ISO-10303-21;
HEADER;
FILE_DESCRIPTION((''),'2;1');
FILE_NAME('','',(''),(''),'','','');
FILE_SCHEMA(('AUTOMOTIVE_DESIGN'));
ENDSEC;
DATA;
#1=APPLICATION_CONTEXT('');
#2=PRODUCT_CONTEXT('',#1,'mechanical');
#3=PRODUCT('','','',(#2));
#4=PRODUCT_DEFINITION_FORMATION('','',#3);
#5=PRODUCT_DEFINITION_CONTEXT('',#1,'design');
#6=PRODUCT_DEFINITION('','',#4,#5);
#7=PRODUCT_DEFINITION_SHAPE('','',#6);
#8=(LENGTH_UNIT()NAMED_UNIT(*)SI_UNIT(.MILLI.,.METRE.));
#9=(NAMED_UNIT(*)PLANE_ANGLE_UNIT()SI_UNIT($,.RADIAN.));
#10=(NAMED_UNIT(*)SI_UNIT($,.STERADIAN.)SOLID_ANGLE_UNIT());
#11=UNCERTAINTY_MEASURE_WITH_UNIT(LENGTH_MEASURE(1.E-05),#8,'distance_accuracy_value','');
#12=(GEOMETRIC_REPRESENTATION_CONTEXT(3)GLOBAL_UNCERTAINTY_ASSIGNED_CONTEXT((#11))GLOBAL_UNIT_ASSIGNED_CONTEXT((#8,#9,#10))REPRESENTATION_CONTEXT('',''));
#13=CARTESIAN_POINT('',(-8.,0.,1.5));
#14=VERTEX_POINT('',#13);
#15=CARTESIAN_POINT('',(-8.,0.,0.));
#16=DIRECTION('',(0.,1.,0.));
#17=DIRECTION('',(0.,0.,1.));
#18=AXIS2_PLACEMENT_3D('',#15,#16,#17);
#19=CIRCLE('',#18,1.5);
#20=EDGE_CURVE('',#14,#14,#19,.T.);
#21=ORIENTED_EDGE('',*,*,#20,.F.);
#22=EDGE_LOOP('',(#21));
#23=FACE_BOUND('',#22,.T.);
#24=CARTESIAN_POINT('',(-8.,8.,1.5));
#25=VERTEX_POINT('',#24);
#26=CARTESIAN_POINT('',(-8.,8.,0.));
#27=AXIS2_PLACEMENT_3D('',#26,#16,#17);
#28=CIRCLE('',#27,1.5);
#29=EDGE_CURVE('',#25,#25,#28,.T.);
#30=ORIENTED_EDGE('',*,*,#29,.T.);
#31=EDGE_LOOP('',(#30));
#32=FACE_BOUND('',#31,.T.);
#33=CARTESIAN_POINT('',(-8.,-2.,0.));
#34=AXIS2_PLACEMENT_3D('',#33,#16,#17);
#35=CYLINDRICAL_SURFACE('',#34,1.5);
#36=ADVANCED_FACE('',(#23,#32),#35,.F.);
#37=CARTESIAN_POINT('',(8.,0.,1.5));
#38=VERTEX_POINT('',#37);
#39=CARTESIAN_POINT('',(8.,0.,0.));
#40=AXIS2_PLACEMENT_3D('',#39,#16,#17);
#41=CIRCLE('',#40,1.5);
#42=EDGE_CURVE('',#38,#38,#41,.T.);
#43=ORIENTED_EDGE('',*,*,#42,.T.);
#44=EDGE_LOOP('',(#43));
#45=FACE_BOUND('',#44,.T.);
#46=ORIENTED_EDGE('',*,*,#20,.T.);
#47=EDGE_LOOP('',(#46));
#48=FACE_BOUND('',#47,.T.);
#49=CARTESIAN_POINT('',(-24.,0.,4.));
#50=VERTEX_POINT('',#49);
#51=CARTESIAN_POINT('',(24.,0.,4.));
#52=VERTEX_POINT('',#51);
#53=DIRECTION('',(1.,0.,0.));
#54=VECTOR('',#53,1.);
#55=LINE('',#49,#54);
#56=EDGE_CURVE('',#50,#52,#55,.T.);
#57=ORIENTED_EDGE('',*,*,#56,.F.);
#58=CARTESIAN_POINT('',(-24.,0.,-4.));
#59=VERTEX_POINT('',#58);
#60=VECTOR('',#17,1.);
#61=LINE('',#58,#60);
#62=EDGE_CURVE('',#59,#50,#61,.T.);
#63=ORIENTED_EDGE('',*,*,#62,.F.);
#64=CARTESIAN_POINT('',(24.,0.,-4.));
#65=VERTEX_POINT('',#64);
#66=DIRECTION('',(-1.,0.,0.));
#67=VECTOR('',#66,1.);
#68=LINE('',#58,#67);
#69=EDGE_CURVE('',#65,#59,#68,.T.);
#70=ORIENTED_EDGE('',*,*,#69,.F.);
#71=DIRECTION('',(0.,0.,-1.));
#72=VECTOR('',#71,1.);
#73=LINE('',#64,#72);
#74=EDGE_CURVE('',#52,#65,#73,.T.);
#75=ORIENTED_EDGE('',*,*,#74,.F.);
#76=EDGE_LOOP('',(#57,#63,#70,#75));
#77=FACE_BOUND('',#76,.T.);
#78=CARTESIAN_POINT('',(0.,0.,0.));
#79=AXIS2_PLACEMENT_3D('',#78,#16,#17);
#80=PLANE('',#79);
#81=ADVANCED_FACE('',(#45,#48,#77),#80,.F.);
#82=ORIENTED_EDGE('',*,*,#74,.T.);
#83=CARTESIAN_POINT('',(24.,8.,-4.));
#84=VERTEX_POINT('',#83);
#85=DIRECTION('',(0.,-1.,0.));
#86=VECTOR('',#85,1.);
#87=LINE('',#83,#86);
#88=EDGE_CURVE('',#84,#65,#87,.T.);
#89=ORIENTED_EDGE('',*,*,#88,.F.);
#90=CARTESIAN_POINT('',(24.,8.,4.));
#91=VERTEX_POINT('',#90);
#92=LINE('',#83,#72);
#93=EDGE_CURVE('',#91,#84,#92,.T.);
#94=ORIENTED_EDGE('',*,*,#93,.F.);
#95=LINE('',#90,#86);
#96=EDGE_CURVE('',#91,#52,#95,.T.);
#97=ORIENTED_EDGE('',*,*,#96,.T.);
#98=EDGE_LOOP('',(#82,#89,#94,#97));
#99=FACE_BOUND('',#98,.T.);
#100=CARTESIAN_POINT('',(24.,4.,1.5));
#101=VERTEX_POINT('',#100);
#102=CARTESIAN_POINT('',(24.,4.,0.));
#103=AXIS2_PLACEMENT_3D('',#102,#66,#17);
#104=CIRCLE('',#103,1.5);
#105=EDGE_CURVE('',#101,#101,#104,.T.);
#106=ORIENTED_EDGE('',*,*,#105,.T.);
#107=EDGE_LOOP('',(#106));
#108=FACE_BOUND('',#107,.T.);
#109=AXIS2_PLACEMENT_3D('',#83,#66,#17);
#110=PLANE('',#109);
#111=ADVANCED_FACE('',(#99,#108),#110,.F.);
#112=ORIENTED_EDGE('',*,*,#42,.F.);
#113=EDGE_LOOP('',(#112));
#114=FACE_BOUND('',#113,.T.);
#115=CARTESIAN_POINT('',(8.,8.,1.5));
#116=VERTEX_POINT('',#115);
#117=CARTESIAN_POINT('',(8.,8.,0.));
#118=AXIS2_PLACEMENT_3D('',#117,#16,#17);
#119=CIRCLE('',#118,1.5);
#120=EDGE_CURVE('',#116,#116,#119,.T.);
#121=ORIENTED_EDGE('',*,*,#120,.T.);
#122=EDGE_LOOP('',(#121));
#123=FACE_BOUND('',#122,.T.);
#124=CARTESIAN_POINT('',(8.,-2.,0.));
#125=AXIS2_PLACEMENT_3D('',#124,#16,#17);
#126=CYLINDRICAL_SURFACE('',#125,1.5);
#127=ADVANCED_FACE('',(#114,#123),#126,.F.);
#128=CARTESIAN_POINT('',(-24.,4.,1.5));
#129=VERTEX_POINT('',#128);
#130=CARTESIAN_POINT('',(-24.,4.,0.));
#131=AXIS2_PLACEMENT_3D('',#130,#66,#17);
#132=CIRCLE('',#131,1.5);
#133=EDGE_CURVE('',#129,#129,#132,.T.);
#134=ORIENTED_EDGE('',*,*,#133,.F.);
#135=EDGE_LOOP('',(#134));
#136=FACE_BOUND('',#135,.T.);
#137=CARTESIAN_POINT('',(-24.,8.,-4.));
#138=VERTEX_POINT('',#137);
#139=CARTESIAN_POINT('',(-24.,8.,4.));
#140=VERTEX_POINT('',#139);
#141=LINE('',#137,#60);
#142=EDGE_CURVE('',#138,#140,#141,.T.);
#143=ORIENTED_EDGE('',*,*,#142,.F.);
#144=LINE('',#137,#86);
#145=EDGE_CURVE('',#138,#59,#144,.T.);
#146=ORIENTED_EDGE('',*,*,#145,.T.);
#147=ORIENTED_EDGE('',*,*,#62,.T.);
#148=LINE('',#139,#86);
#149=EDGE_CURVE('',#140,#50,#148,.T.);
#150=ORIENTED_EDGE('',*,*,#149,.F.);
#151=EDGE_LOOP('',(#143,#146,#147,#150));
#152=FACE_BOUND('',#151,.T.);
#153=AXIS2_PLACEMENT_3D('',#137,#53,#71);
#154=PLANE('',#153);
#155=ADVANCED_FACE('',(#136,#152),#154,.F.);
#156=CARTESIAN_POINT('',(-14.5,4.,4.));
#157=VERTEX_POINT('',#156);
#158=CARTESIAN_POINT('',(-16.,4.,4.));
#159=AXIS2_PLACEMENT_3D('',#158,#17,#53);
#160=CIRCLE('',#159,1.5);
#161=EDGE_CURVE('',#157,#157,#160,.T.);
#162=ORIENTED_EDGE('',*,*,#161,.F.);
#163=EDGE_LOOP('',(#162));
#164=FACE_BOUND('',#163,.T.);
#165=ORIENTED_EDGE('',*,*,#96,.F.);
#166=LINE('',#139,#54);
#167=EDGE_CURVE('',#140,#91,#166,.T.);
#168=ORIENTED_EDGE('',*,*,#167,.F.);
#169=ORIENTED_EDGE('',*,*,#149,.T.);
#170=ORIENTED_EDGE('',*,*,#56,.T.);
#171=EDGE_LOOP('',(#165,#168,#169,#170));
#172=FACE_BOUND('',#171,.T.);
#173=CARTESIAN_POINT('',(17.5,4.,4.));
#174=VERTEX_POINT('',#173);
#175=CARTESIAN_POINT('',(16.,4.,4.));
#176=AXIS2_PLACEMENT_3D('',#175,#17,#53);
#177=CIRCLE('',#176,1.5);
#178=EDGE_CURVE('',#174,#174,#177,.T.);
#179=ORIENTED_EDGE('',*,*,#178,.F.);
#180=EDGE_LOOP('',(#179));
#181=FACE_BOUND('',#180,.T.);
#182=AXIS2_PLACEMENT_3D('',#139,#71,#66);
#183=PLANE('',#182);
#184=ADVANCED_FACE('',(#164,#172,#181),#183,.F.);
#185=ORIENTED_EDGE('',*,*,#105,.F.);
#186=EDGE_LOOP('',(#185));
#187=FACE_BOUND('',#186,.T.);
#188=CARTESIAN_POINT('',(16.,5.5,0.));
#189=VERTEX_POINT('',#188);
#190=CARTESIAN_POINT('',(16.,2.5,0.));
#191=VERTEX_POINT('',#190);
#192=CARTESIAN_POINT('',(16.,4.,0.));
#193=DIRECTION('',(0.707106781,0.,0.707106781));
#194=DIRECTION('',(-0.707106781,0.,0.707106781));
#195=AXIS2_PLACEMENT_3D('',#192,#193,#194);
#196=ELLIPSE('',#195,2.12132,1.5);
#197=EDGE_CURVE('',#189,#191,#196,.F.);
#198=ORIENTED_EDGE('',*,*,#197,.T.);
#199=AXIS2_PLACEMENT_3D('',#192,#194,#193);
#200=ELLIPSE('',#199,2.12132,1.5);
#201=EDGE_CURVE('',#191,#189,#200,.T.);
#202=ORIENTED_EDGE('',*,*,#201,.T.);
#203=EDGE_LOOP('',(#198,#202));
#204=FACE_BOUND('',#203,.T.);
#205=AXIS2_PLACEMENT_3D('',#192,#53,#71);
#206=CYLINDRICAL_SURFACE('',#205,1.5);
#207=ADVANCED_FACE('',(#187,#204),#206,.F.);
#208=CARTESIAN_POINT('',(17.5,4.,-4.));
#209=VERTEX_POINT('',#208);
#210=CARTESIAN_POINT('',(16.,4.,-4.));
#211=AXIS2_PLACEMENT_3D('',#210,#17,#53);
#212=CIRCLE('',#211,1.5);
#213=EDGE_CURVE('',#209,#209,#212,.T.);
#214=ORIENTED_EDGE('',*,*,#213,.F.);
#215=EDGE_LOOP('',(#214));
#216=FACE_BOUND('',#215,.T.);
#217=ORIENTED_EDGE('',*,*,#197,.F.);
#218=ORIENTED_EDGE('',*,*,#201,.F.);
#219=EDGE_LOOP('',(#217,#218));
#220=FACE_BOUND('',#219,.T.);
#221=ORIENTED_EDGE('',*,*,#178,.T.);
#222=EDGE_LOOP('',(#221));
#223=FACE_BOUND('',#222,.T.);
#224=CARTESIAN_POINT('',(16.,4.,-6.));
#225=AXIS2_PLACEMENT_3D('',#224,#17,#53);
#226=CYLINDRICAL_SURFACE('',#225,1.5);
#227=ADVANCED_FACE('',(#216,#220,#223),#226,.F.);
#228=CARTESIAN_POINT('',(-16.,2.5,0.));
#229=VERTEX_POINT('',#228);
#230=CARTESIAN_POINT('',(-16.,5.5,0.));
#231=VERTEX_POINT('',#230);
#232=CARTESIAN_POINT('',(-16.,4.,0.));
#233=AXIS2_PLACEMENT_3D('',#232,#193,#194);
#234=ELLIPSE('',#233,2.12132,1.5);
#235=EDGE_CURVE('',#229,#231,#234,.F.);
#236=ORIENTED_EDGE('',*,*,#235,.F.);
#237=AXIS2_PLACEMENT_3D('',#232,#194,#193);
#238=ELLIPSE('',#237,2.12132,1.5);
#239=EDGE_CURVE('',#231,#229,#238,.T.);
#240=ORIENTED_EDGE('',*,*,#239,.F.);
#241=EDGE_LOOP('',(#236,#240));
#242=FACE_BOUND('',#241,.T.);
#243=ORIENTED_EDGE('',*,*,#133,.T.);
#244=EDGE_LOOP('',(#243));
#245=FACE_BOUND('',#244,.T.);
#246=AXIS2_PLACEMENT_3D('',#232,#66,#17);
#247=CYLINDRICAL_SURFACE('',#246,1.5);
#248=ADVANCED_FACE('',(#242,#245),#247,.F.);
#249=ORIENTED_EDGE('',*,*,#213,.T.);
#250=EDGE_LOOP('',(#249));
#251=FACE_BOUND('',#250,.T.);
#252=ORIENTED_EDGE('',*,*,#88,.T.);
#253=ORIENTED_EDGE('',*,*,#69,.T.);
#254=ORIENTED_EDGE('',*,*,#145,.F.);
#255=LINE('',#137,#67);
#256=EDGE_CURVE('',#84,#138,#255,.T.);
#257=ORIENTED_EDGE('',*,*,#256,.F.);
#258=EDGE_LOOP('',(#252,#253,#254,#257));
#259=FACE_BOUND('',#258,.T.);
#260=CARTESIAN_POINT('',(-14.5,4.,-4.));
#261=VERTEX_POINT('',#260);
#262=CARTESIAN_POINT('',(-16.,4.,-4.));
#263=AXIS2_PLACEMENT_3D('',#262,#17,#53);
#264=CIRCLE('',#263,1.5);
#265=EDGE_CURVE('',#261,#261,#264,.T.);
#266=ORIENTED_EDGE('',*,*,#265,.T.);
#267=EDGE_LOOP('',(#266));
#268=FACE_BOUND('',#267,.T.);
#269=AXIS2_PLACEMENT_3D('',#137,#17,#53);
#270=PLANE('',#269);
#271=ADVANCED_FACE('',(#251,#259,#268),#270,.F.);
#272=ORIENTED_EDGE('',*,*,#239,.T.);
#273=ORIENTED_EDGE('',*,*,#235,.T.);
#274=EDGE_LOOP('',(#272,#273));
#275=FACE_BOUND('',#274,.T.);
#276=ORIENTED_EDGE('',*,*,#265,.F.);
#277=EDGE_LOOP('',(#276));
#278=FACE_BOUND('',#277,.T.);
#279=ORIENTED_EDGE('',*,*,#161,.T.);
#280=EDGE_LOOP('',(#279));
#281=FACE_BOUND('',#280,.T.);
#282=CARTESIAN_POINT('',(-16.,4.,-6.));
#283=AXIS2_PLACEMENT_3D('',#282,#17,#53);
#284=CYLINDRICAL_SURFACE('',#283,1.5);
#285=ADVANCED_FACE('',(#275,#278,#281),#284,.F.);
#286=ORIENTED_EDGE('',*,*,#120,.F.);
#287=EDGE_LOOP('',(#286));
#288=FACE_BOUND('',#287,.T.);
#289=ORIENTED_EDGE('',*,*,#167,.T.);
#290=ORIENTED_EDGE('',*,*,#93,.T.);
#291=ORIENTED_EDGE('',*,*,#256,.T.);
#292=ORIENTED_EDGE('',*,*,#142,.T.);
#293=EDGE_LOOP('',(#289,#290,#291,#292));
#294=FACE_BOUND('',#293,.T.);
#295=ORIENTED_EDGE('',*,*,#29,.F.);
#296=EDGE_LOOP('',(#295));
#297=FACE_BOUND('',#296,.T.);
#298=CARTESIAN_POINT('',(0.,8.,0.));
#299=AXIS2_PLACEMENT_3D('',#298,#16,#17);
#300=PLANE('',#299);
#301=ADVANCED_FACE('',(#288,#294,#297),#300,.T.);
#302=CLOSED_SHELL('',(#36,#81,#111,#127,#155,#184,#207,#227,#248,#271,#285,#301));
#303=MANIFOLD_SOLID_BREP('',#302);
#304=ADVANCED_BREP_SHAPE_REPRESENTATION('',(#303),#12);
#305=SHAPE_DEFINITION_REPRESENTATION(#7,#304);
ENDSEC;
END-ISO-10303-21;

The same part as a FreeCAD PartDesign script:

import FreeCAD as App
import Part
import Sketcher
from FreeCAD import Vector
Q = App.Units.Quantity

doc = App.newDocument("Part")
body = doc.addObject("PartDesign::Body", "Body")

# Sketch on XZ plane
sketch1 = body.newObject("Sketcher::SketchObject", "Sketch")
sketch1.AttachmentSupport = (doc.getObject("XZ_Plane"), [""])
sketch1.MapMode = "FlatFace"
sketch1.addGeometry([
    Part.LineSegment(Vector(-24, -4, 0), Vector(-24, 4, 0)),
    Part.LineSegment(Vector(-24, 4, 0), Vector(24, 4, 0)),
    Part.LineSegment(Vector(24, 4, 0), Vector(24, -4, 0)),
    Part.LineSegment(Vector(24, -4, 0), Vector(-24, -4, 0)),
], False)
sketch1.addConstraint([
    Sketcher.Constraint("Coincident", 0, 2, 1, 1),
    Sketcher.Constraint("Coincident", 1, 2, 2, 1),
    Sketcher.Constraint("Coincident", 2, 2, 3, 1),
    Sketcher.Constraint("Coincident", 3, 2, 0, 1),
    Sketcher.Constraint("Vertical", 0),
    Sketcher.Constraint("Horizontal", 1),
    Sketcher.Constraint("Vertical", 2),
    Sketcher.Constraint("Horizontal", 3),
    Sketcher.Constraint("Symmetric", 0, 2, 2, 2, -1, 1),
    Sketcher.Constraint("DistanceX", 1, 1, 1, 2, Q("48 mm")),
    Sketcher.Constraint("DistanceY", 0, 1, 0, 2, Q("8 mm")),
])
pad1 = body.newObject("PartDesign::Pad", "Pad")
pad1.Profile = sketch1
pad1.Length = 8
pad1.Reversed = True

# Sketch on XY plane
sketch2 = body.newObject("Sketcher::SketchObject", "Sketch001")
sketch2.AttachmentSupport = (doc.getObject("XY_Plane"), [""])
sketch2.MapMode = "FlatFace"
sketch2.AttachmentOffset = App.Placement(Vector(0, 0, 4), App.Rotation())
sketch2.addGeometry([
    Part.Circle(Vector(-16, 4, 0), Vector(0, 0, 1), 1.5),
    Part.Circle(Vector(16, 4, 0), Vector(0, 0, 1), 1.5),
], False)
sketch2.addConstraint([
    Sketcher.Constraint("Equal", 0, 1),
    Sketcher.Constraint("Symmetric", 0, 3, 1, 3, -2),
    Sketcher.Constraint("Diameter", 0, Q("3 mm")),
    Sketcher.Constraint("DistanceX", 0, 3, -1, 1, Q("16 mm")),
    Sketcher.Constraint("DistanceY", -1, 1, 0, 3, Q("4 mm")),
])
pocket1 = body.newObject("PartDesign::Pocket", "Pocket")
pocket1.Profile = sketch2
pocket1.Length = 10

# Sketch on XZ plane
sketch3 = body.newObject("Sketcher::SketchObject", "Sketch002")
sketch3.AttachmentSupport = (doc.getObject("XZ_Plane"), [""])
sketch3.MapMode = "FlatFace"
sketch3.AttachmentOffset = App.Placement(Vector(0, 0, -8), App.Rotation())
sketch3.addGeometry([
    Part.Circle(Vector(-8, 0, 0), Vector(0, 0, 1), 1.5),
    Part.Circle(Vector(8, 0, 0), Vector(0, 0, 1), 1.5),
], False)
sketch3.addConstraint([
    Sketcher.Constraint("Equal", 0, 1),
    Sketcher.Constraint("Symmetric", 0, 3, 1, 3, -1, 1),
    Sketcher.Constraint("PointOnObject", 0, 3, -1),
    Sketcher.Constraint("Diameter", 0, Q("3 mm")),
    Sketcher.Constraint("DistanceX", 0, 3, -1, 1, Q("8 mm")),
])
pocket2 = body.newObject("PartDesign::Pocket", "Pocket001")
pocket2.Profile = sketch3
pocket2.Length = 10
pocket2.Reversed = True

# Sketch on YZ plane
sketch4 = body.newObject("Sketcher::SketchObject", "Sketch003")
sketch4.AttachmentSupport = (doc.getObject("YZ_Plane"), [""])
sketch4.MapMode = "FlatFace"
sketch4.AttachmentOffset = App.Placement(Vector(0, 0, -24), App.Rotation())
sketch4.addGeometry(Part.Circle(Vector(4, 0, 0), Vector(0, 0, 1), 1.5), False)
sketch4.addConstraint([
    Sketcher.Constraint("PointOnObject", 0, 3, -1),
    Sketcher.Constraint("Diameter", 0, Q("3 mm")),
    Sketcher.Constraint("DistanceX", -1, 1, 0, 3, Q("4 mm")),
])
pocket3 = body.newObject("PartDesign::Pocket", "Pocket002")
pocket3.Profile = sketch4
pocket3.Length = 8
pocket3.Reversed = True
doc.recompute()

mirrored = body.newObject("PartDesign::Mirrored", "Mirrored")
mirrored.Originals = [pocket3]
mirrored.MirrorPlane = (doc.getObject("YZ_Plane"), [""])
body.Tip = mirrored

doc.recompute()
